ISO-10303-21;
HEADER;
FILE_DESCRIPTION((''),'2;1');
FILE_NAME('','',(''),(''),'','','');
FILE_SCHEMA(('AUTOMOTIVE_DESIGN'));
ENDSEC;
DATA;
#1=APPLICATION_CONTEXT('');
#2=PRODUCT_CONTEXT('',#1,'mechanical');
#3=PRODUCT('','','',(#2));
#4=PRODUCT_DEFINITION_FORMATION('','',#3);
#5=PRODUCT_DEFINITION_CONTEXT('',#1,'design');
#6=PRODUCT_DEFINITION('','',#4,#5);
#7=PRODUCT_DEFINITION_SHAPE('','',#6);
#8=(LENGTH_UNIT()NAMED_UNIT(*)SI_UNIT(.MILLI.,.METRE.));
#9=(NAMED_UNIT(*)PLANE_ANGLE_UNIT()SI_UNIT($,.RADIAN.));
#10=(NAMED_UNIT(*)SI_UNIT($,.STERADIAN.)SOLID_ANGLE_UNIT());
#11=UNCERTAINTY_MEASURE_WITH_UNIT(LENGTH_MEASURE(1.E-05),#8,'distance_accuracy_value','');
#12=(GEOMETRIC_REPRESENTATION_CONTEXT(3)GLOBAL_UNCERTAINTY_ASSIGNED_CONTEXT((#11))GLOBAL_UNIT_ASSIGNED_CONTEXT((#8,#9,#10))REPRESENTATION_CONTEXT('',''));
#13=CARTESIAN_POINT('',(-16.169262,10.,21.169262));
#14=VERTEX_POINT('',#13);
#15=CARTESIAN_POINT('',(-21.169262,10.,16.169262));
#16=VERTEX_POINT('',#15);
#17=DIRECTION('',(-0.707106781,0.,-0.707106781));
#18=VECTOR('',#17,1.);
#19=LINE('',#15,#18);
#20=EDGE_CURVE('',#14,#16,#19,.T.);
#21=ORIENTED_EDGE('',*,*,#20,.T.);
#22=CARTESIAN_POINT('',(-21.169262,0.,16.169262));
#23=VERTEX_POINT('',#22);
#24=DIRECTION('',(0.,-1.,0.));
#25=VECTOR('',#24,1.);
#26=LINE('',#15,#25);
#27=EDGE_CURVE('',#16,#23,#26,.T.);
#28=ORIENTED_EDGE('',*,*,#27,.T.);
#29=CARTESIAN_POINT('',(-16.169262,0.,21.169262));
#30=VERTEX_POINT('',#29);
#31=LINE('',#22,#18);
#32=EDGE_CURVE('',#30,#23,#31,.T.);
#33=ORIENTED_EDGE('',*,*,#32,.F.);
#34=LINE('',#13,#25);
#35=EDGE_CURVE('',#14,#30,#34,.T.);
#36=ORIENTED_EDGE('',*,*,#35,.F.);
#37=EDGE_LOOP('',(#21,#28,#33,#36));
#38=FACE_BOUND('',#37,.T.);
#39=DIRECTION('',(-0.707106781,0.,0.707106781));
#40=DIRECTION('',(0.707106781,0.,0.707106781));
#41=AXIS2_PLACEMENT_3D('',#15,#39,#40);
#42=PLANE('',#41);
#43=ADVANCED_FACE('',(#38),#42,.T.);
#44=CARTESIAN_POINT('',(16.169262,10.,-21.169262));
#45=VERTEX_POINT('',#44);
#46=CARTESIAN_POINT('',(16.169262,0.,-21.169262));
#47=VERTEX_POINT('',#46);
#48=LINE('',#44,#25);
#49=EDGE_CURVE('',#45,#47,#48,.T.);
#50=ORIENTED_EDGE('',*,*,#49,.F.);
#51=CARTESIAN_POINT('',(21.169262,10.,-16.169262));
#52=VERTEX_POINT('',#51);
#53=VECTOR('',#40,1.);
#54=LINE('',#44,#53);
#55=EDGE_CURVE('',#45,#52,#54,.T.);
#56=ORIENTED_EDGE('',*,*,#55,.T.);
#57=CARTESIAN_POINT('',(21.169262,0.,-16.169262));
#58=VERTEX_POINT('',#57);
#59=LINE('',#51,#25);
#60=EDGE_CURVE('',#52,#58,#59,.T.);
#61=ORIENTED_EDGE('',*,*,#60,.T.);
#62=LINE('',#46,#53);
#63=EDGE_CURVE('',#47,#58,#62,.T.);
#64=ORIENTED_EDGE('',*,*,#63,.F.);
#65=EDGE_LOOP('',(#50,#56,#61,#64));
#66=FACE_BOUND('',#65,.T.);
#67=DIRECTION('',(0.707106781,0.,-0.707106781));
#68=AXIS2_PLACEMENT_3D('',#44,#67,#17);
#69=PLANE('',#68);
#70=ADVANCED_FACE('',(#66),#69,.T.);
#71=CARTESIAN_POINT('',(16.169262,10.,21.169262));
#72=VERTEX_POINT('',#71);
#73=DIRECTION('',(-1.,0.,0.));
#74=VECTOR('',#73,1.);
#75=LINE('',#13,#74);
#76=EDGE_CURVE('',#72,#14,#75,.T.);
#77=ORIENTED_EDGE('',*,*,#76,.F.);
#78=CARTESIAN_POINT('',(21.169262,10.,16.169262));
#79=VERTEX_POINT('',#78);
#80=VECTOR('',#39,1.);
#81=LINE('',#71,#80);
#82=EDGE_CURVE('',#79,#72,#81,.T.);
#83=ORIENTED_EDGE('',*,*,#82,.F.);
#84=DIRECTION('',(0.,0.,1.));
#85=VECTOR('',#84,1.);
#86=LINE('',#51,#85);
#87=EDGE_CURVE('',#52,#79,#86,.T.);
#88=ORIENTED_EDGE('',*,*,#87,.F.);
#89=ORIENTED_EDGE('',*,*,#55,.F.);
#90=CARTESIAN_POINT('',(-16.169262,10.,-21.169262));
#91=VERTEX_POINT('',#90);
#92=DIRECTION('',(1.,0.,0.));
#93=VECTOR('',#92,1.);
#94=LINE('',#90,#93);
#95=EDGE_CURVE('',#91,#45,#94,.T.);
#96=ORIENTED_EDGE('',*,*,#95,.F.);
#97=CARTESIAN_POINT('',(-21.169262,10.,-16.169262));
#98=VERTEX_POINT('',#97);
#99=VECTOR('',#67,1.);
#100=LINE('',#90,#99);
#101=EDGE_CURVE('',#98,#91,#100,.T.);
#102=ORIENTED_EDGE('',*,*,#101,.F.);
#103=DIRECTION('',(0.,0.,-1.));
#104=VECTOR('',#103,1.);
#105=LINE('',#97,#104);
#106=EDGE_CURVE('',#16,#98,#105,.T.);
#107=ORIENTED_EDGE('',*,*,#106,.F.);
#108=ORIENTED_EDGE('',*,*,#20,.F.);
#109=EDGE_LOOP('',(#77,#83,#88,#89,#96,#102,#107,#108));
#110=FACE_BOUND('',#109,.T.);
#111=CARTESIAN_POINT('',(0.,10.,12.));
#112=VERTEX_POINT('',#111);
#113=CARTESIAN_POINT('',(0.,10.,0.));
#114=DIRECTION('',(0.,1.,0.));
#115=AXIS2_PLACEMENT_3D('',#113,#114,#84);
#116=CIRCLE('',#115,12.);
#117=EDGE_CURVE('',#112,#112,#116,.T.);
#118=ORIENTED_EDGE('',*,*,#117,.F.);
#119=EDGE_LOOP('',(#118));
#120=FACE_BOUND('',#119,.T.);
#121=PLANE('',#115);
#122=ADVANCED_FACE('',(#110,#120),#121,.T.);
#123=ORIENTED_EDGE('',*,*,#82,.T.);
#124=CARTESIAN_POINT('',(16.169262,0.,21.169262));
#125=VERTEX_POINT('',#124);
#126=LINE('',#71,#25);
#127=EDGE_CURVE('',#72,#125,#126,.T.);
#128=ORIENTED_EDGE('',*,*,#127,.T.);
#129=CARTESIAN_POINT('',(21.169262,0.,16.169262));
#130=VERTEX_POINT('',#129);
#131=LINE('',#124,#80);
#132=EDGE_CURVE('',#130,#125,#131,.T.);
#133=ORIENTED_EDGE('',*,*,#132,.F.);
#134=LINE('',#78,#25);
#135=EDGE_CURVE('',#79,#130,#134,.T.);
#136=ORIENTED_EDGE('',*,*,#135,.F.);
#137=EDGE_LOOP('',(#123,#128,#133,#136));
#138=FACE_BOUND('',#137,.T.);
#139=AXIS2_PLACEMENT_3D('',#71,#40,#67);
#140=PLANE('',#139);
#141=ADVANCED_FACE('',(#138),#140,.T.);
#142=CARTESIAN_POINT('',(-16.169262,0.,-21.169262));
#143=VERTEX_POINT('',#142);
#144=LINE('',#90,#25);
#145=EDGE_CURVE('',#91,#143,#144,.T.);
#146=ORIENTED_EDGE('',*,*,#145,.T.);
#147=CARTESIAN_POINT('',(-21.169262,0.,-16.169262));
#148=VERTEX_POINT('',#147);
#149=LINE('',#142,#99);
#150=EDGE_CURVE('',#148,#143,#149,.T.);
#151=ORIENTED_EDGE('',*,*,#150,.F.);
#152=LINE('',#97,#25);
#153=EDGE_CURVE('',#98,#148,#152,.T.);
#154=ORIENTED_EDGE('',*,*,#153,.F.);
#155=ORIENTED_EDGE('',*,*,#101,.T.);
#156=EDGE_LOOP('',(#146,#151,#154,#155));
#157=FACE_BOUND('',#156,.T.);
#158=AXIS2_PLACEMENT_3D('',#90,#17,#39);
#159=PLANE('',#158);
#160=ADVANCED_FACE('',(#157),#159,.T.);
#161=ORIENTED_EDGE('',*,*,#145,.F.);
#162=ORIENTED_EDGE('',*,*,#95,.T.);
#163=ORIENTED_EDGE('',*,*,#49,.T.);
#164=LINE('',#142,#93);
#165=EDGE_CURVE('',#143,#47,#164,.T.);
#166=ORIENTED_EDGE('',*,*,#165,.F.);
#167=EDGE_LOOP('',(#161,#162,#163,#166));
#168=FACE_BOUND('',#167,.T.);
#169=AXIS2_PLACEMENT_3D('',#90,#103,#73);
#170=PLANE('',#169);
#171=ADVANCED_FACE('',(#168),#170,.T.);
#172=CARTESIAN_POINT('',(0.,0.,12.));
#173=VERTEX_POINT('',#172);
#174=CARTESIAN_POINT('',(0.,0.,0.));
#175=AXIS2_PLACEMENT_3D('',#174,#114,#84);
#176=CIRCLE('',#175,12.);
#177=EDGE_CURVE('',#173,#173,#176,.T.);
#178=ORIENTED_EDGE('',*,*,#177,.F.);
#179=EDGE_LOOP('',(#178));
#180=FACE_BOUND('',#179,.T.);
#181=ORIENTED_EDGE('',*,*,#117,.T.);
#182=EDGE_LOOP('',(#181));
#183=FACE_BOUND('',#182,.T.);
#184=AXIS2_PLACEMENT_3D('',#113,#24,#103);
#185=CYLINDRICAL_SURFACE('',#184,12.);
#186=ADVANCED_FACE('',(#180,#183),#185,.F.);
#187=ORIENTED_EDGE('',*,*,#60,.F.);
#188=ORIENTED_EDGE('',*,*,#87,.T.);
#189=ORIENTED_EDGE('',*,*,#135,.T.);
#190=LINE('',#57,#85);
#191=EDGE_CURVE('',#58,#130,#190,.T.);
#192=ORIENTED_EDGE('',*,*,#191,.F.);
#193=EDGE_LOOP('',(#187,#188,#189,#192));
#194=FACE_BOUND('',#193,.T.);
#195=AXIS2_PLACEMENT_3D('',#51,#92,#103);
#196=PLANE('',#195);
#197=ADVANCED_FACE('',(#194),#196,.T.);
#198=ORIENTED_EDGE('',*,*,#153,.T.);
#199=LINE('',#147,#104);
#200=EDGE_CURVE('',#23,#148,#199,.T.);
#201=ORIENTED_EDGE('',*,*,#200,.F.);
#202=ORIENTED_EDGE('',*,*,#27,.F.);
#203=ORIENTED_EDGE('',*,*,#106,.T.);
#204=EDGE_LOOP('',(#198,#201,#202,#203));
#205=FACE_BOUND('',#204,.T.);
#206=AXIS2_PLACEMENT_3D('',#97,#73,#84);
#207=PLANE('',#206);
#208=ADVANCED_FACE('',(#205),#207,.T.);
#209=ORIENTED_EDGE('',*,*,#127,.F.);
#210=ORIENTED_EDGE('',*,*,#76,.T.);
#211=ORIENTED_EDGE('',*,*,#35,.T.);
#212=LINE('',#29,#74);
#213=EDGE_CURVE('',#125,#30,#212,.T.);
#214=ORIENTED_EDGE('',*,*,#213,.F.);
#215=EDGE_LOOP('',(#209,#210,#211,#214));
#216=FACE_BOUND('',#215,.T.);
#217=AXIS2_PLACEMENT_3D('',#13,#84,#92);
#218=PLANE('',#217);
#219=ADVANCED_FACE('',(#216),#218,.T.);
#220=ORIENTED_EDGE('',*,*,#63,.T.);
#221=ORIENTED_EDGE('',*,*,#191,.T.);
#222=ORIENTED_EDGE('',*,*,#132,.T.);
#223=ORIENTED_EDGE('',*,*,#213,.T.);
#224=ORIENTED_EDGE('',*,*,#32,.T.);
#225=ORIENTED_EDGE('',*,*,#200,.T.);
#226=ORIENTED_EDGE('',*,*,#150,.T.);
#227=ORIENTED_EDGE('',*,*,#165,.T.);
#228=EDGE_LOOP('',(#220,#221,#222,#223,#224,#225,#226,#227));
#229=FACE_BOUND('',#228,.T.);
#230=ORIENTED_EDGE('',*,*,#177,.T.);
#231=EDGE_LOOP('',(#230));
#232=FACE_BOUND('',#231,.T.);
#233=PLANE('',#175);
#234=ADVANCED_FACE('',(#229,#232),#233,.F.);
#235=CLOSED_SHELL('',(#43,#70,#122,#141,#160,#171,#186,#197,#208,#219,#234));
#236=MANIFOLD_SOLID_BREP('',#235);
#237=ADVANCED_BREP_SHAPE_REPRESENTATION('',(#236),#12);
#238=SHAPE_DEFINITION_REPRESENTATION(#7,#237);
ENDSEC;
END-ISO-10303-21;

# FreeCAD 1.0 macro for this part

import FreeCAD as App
import Part
import Sketcher
from FreeCAD import Vector
Q = App.Units.Quantity

doc = App.newDocument("Part")
body = doc.addObject("PartDesign::Body", "Body")

# Sketch on XZ plane
sketch1 = body.newObject("Sketcher::SketchObject", "Sketch")
sketch1.AttachmentSupport = (doc.getObject("XZ_Plane"), [""])
sketch1.MapMode = "FlatFace"
sketch1.addGeometry([
    Part.Circle(Vector(0, 0, 0), Vector(0, 0, 1), 33),
    Part.Circle(Vector(0, 0, 0), Vector(0, 0, 1), 12),
], False)
sketch1.addConstraint([
    Sketcher.Constraint("Coincident", 0, 3, -1, 1),
    Sketcher.Constraint("Coincident", 1, 3, -1, 1),
    Sketcher.Constraint("Diameter", 1, Q("24 mm")),
    Sketcher.Constraint("Diameter", 0, Q("66.669659 mm")),
])
pad1 = body.newObject("PartDesign::Pad", "Pad")
pad1.Profile = sketch1
pad1.Length = 10
pad1.Reversed = True

# Sketch on XZ plane
sketch2 = body.newObject("Sketcher::SketchObject", "Sketch001")
sketch2.AttachmentSupport = (doc.getObject("XZ_Plane"), [""])
sketch2.MapMode = "FlatFace"
sketch2.addGeometry([
    Part.LineSegment(Vector(-34, 34, 0), Vector(-34, -34, 0)),  # 0
    Part.LineSegment(Vector(-34, -34, 0), Vector(34, -34, 0)),  # 1
    Part.LineSegment(Vector(34, -34, 0), Vector(34, 34, 0)),  # 2
    Part.LineSegment(Vector(34, 34, 0), Vector(-34, 34, 0)),  # 3
    Part.LineSegment(Vector(-16, 21, 0), Vector(16, 21, 0)),  # 4
    Part.LineSegment(Vector(16, 21, 0), Vector(21, 16, 0)),  # 5
    Part.LineSegment(Vector(21, 16, 0), Vector(21, -16, 0)),  # 6
    Part.LineSegment(Vector(21, -16, 0), Vector(16, -21, 0)),  # 7
    Part.LineSegment(Vector(16, -21, 0), Vector(-16, -21, 0)),  # 8
    Part.LineSegment(Vector(-16, -21, 0), Vector(-21, -16, 0)),  # 9
    Part.LineSegment(Vector(-21, -16, 0), Vector(-21, 16, 0)),  # 10
    Part.LineSegment(Vector(-21, 16, 0), Vector(-16, 21, 0)),  # 11
], False)
sketch2.addConstraint([
    Sketcher.Constraint("Coincident", 0, 2, 1, 1),
    Sketcher.Constraint("Coincident", 1, 2, 2, 1),
    Sketcher.Constraint("Coincident", 2, 2, 3, 1),
    Sketcher.Constraint("Coincident", 3, 2, 0, 1),
    Sketcher.Constraint("Coincident", 4, 2, 5, 1),
    Sketcher.Constraint("Coincident", 5, 2, 6, 1),
    Sketcher.Constraint("Coincident", 6, 2, 7, 1),
    Sketcher.Constraint("Coincident", 7, 2, 8, 1),
    Sketcher.Constraint("Coincident", 8, 2, 9, 1),
    Sketcher.Constraint("Coincident", 9, 2, 10, 1),
    Sketcher.Constraint("Coincident", 10, 2, 11, 1),
    Sketcher.Constraint("Coincident", 11, 2, 4, 1),
    Sketcher.Constraint("Vertical", 0),
    Sketcher.Constraint("Horizontal", 1),
    Sketcher.Constraint("Vertical", 2),
    Sketcher.Constraint("Horizontal", 3),
    Sketcher.Constraint("Horizontal", 4),
    Sketcher.Constraint("Vertical", 6),
    Sketcher.Constraint("Horizontal", 8),
    Sketcher.Constraint("Vertical", 10),
    Sketcher.Constraint("Symmetric", 0, 2, 2, 2, -1, 1),
    Sketcher.Constraint("Symmetric", 4, 2, 8, 2, -1, 1),
    Sketcher.Constraint("Symmetric", 5, 2, 9, 2, -1, 1),
    Sketcher.Constraint("Perpendicular", 5, 7),
    Sketcher.Constraint("Perpendicular", 9, 11),
    Sketcher.Constraint("Horizontal", 6, 2, 9, 2),
    Sketcher.Constraint("Horizontal", 5, 2, 10, 2),
    Sketcher.Constraint("Vertical", 4, 2, 7, 2),
    Sketcher.Constraint("Equal", 3, 0),
    Sketcher.Constraint("Equal", 8, 6),
    Sketcher.Constraint("DistanceX", 4, 2, 5, 2, Q("5 mm")),
    Sketcher.Constraint("DistanceX", 1, 1, 1, 2, Q("68.746937 mm")),
    Sketcher.Constraint("DistanceX", 4, 1, 4, 2, Q("32.338524 mm")),
])
pocket1 = body.newObject("PartDesign::Pocket", "Pocket")
pocket1.Profile = sketch2
pocket1.Length = 10

doc.recompute()
